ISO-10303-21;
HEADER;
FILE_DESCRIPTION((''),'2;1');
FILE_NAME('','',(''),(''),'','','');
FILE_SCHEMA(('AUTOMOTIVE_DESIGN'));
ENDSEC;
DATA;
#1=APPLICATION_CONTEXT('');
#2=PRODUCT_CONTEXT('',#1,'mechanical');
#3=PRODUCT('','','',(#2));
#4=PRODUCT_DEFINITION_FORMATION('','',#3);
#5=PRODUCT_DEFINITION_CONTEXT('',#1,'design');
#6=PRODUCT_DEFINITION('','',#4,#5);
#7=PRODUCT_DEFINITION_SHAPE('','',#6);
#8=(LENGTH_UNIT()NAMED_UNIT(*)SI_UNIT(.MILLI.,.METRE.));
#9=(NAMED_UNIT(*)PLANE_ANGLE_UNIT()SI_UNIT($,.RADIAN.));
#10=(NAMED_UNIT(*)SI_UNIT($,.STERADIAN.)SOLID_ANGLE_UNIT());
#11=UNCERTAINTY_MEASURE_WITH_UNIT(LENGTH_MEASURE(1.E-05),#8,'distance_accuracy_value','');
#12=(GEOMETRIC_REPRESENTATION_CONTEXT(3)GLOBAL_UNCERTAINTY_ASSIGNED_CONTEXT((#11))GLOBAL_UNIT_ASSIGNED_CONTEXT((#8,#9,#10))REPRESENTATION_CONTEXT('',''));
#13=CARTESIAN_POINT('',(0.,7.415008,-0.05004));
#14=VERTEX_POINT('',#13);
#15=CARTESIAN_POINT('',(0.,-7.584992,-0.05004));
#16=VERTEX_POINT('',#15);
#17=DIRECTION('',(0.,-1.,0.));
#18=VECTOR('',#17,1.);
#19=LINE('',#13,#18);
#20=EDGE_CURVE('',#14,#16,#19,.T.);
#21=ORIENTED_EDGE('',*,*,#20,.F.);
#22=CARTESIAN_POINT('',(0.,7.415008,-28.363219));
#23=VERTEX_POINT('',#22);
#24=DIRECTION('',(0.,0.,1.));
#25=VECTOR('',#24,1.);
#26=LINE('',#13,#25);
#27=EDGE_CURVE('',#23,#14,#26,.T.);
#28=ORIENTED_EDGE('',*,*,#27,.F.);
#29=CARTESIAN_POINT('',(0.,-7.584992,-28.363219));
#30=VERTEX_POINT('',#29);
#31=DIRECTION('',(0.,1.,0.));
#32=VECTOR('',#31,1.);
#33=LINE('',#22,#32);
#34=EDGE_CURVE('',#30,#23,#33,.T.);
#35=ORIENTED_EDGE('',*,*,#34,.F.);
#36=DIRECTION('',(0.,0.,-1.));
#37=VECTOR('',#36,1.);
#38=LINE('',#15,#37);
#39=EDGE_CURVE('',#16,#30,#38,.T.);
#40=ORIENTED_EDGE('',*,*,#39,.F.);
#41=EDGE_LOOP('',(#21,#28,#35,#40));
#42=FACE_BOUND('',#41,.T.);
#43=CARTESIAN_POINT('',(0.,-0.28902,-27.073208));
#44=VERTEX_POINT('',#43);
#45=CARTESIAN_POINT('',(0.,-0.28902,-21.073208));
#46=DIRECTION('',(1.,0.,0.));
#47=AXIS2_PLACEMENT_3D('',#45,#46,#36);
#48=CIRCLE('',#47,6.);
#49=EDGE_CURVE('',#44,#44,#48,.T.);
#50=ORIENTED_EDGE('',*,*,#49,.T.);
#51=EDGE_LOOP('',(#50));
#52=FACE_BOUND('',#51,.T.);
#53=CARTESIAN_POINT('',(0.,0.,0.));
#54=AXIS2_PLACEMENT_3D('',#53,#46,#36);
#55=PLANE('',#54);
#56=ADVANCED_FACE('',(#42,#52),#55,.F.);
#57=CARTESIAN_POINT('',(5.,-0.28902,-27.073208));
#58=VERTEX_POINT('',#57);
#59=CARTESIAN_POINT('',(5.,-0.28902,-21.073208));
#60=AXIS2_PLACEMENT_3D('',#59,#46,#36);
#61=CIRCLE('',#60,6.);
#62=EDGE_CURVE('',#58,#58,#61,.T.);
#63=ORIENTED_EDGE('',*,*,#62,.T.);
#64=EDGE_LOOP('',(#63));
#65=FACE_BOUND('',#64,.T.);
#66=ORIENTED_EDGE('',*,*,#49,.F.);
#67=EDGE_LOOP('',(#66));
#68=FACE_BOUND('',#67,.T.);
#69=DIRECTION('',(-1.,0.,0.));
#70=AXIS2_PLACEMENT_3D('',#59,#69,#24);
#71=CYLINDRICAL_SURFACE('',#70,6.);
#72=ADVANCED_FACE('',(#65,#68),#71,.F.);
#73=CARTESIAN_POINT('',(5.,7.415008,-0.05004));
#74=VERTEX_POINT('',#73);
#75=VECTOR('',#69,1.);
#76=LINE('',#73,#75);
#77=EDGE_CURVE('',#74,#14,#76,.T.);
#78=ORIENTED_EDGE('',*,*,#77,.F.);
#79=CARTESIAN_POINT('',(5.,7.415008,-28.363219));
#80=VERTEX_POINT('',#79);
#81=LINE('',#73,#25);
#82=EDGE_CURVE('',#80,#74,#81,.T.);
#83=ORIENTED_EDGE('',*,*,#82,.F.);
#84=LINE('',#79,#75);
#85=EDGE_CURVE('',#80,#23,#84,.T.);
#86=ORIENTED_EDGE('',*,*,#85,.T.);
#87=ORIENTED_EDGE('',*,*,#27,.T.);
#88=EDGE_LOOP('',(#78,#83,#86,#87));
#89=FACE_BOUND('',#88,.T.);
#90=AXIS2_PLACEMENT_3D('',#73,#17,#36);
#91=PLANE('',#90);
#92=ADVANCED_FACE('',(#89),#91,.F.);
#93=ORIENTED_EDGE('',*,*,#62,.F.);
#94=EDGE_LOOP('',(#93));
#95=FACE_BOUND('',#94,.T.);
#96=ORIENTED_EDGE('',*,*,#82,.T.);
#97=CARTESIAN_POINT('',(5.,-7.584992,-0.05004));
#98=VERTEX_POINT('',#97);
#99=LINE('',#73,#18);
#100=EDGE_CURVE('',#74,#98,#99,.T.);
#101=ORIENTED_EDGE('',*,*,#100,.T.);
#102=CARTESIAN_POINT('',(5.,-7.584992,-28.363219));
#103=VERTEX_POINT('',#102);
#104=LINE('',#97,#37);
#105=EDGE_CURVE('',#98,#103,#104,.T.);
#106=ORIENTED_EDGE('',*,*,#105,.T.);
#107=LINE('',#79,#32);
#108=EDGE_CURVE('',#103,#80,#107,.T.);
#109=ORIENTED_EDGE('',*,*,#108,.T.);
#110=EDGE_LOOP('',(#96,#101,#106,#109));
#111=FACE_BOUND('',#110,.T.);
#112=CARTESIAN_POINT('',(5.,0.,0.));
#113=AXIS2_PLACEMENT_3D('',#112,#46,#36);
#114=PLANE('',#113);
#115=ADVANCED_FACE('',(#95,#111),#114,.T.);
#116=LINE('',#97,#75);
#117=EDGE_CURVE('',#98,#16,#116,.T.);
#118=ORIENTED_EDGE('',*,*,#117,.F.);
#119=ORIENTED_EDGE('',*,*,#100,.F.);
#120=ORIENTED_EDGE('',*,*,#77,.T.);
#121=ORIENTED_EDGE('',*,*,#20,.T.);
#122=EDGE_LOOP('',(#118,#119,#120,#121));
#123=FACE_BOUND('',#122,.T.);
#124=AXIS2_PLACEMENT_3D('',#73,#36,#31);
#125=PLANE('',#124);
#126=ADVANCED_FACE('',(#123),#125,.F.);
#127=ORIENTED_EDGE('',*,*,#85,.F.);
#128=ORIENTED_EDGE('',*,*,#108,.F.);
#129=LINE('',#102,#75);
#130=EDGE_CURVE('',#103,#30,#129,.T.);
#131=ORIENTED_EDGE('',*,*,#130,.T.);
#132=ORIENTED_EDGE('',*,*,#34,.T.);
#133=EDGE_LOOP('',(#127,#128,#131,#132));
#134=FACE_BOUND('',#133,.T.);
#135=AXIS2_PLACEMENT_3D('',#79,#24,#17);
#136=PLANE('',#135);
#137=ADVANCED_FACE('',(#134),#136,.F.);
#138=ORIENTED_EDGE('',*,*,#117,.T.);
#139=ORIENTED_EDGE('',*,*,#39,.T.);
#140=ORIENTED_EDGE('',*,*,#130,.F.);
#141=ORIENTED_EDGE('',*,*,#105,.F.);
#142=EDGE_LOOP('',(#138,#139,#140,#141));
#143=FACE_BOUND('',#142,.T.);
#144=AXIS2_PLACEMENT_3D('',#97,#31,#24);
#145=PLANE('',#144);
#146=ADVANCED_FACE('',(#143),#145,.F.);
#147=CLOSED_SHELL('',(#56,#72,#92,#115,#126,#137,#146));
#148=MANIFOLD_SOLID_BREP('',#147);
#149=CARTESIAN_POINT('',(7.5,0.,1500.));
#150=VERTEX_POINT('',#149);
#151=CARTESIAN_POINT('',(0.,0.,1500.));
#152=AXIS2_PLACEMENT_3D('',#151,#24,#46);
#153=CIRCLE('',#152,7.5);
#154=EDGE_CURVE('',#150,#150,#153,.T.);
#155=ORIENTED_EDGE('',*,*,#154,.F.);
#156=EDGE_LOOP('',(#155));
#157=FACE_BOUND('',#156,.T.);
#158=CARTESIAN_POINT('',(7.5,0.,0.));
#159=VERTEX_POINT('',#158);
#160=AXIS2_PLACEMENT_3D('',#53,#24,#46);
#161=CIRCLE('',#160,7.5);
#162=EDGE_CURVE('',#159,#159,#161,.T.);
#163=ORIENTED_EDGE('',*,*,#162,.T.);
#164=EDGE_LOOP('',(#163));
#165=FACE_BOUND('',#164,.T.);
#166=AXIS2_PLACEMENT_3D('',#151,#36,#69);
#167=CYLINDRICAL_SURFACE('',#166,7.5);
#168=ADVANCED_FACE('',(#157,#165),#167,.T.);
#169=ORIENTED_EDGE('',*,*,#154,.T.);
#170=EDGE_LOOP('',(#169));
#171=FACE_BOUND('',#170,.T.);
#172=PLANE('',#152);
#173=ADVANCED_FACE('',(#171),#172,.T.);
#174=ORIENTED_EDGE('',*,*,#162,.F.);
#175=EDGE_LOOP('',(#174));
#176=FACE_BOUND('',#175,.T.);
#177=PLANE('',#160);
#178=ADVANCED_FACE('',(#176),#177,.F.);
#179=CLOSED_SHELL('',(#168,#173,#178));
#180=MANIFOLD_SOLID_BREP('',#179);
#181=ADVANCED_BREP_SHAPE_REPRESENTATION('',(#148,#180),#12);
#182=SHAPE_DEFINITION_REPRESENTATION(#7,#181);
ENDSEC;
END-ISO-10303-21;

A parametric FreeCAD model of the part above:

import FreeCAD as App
import Part
import Sketcher
Q = App.Units.Quantity

doc = App.newDocument("Part")
body = doc.addObject("PartDesign::Body", "Body")

# Sketch on XY plane
sketch1 = doc.addObject("Sketcher::SketchObject", "Sketch")
body.addObject(sketch1)
sketch1.AttachmentSupport = (doc.XY_Plane, [""])
sketch1.MapMode = "FlatFace"
sketch1.addGeometry(Part.Circle(App.Vector(0, 0, 0), App.Vector(0, 0, 1), 8), False)
sketch1.addConstraint(Sketcher.Constraint("Coincident", 0, 3, -1, 1))
sketch1.addConstraint(Sketcher.Constraint("Diameter", 0, Q("15 mm")))
pad1 = doc.addObject("PartDesign::Pad", "Pad")
body.addObject(pad1)
pad1.Profile = sketch1
pad1.Length = 1500
body2 = doc.addObject("PartDesign::Body", "Body001")

# Sketch on YZ plane
sketch2 = doc.addObject("Sketcher::SketchObject", "Sketch001")
body2.addObject(sketch2)
sketch2.AttachmentSupport = (doc.getObject("YZ_Plane001"), [""])
sketch2.MapMode = "FlatFace"
sketch2.addGeometry(Part.LineSegment(App.Vector(7, 0, 0), App.Vector(-8, 0, 0)), False)
sketch2.addGeometry(Part.LineSegment(App.Vector(-8, 0, 0), App.Vector(-8, -28, 0)), False)
sketch2.addGeometry(Part.LineSegment(App.Vector(-8, -28, 0), App.Vector(7, -28, 0)), False)
sketch2.addGeometry(Part.LineSegment(App.Vector(7, -28, 0), App.Vector(7, 0, 0)), False)
sketch2.addGeometry(Part.Circle(App.Vector(0, -21, 0), App.Vector(0, 0, 1), 6), False)
sketch2.addConstraint(Sketcher.Constraint("Coincident", 0, 2, 1, 1))
sketch2.addConstraint(Sketcher.Constraint("Coincident", 1, 2, 2, 1))
sketch2.addConstraint(Sketcher.Constraint("Coincident", 2, 2, 3, 1))
sketch2.addConstraint(Sketcher.Constraint("Coincident", 3, 2, 0, 1))
sketch2.addConstraint(Sketcher.Constraint("Horizontal", 0))
sketch2.addConstraint(Sketcher.Constraint("Vertical", 1))
sketch2.addConstraint(Sketcher.Constraint("Horizontal", 2))
sketch2.addConstraint(Sketcher.Constraint("Vertical", 3))
sketch2.addConstraint(Sketcher.Constraint("Diameter", 4, Q("12 mm")))
sketch2.addConstraint(Sketcher.Constraint("DistanceX", 0, 2, 0, 1, Q("15 mm")))
sketch2.addConstraint(Sketcher.Constraint("DistanceY", 1, 2, 1, 1, Q("28.313179 mm")))
sketch2.addConstraint(Sketcher.Constraint("DistanceX", 4, 3, -1, 1, Q("0.28902 mm")))
sketch2.addConstraint(Sketcher.Constraint("DistanceY", 4, 3, -1, 1, Q("21.073208 mm")))
sketch2.addConstraint(Sketcher.Constraint("DistanceY", 0, 2, -1, 1, Q("0.05004 mm")))
sketch2.addConstraint(Sketcher.Constraint("DistanceX", 0, 2, -1, 1, Q("7.584992 mm")))
pad2 = doc.addObject("PartDesign::Pad", "Pad001")
body2.addObject(pad2)
pad2.Profile = sketch2
pad2.Length = 5

doc.recompute()
